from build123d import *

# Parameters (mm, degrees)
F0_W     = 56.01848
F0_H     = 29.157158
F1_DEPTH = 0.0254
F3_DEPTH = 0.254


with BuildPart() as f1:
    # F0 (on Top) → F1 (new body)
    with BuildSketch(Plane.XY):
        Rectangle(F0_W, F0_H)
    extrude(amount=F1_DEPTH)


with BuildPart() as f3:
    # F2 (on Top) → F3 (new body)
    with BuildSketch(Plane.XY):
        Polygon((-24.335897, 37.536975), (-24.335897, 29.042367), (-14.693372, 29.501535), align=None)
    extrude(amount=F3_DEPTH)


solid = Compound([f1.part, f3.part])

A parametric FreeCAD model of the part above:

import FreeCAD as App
import Part
import Sketcher

V = App.Vector
Q = App.Units.Quantity


def add_polygon(sketch, points):
    """Adds a closed chain of lines whose ends are joined by coincident constraints."""
    first, n = sketch.GeometryCount, len(points)
    for a, b in zip(points, points[1:] + points[:1]):
        sketch.addGeometry(Part.LineSegment(App.Vector(*a, 0), App.Vector(*b, 0)), False)
    for i in range(n):
        sketch.addConstraint(Sketcher.Constraint("Coincident", first + i, 2, first + (i + 1) % n, 1))

doc = App.newDocument("Part")
body = doc.addObject("PartDesign::Body", "Body")

# Sketch on XY plane
sketch1 = body.newObject("Sketcher::SketchObject", "Sketch")
sketch1.AttachmentSupport = (doc.getObject("XY_Plane"), [""])
sketch1.MapMode = "FlatFace"
add_polygon(sketch1, [(-28.00924, 14.578579), (-28.00924, -14.578579), (28.00924, -14.578579), (28.00924, 14.578579)])  # lines 0-3
sketch1.addConstraint(Sketcher.Constraint("Vertical", 0))
sketch1.addConstraint(Sketcher.Constraint("Horizontal", 1))
sketch1.addConstraint(Sketcher.Constraint("Vertical", 2))
sketch1.addConstraint(Sketcher.Constraint("Horizontal", 3))
sketch1.addConstraint(Sketcher.Constraint("Symmetric", 0, 2, 2, 2, -1, 1))
sketch1.addConstraint(Sketcher.Constraint("DistanceX", 1, 1, 1, 2, 56.01848))
sketch1.addConstraint(Sketcher.Constraint("DistanceY", 0, 2, 0, 1, 29.157158))
pad1 = body.newObject("PartDesign::Pad", "Pad")
pad1.Profile = sketch1
pad1.Length = Q("0.001 in")
body2 = doc.addObject("PartDesign::Body", "Body001")

# Sketch on XY plane
sketch2 = body2.newObject("Sketcher::SketchObject", "Sketch001")
sketch2.AttachmentSupport = (doc.getObject("XY_Plane001"), [""])
sketch2.MapMode = "FlatFace"
add_polygon(sketch2, [(-24.335897, 37.536975), (-24.335897, 29.042367), (-14.693372, 29.501535)])  # lines 0-2
sketch2.addConstraint(Sketcher.Constraint("Vertical", 0))
sketch2.addConstraint(Sketcher.Constraint("Distance", 1, 9.653451))
sketch2.addConstraint(Sketcher.Constraint("DistanceY", 0, 2, 0, 1, 8.494608))
sketch2.addConstraint(Sketcher.Constraint("DistanceY", 0, 2, 1, 2, 0.459168))
sketch2.addConstraint(Sketcher.Constraint("DistanceX", 0, 2, -1, 1, 24.335897))
sketch2.addConstraint(Sketcher.Constraint("DistanceY", -1, 1, 0, 2, 29.042367))
pad2 = body2.newObject("PartDesign::Pad", "Pad001")
pad2.Profile = sketch2
pad2.Length = Q("0.01 in")

doc.recompute()
